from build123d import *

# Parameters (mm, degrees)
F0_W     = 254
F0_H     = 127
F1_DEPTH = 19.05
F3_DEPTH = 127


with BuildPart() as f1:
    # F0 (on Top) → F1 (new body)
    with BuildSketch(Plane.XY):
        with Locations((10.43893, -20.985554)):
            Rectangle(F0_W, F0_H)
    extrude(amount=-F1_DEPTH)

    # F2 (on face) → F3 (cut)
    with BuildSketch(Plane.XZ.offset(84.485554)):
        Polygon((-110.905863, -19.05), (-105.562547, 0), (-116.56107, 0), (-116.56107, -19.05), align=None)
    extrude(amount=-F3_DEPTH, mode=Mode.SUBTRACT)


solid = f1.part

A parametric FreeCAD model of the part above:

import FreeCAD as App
import Part
import Sketcher
from FreeCAD import Vector
Q = App.Units.Quantity


def add_polygon(sketch, points):
    """Adds a closed chain of lines whose ends are joined by coincident constraints."""
    first, n = sketch.GeometryCount, len(points)
    for a, b in zip(points, points[1:] + points[:1]):
        sketch.addGeometry(Part.LineSegment(App.Vector(*a, 0), App.Vector(*b, 0)), False)
    for i in range(n):
        sketch.addConstraint(Sketcher.Constraint("Coincident", first + i, 2, first + (i + 1) % n, 1))

doc = App.newDocument("Part")
body = doc.addObject("PartDesign::Body", "Body")

# Sketch on XY plane
sketch1 = doc.addObject("Sketcher::SketchObject", "Sketch")
body.addObject(sketch1)
sketch1.AttachmentSupport = (doc.XY_Plane, [""])
sketch1.MapMode = "FlatFace"
add_polygon(sketch1, [(-117, 43), (-117, -84), (137, -84), (137, 43)])  # lines 0-3
sketch1.addConstraint(Sketcher.Constraint("Vertical", 0))
sketch1.addConstraint(Sketcher.Constraint("Horizontal", 1))
sketch1.addConstraint(Sketcher.Constraint("Vertical", 2))
sketch1.addConstraint(Sketcher.Constraint("Horizontal", 3))
sketch1.addConstraint(Sketcher.Constraint("DistanceX", 1, 1, 1, 2, Q("10 in")))
sketch1.addConstraint(Sketcher.Constraint("DistanceY", 0, 2, 0, 1, Q("5 in")))
sketch1.addConstraint(Sketcher.Constraint("DistanceX", 0, 2, -1, 1, 116.56107))
sketch1.addConstraint(Sketcher.Constraint("DistanceY", 0, 2, -1, 1, 84.485554))
pad1 = doc.addObject("PartDesign::Pad", "Pad")
body.addObject(pad1)
pad1.Profile = sketch1
pad1.Length = Q("0.75 in")
pad1.Reversed = True

# Sketch on XZ plane
sketch2 = doc.addObject("Sketcher::SketchObject", "Sketch001")
body.addObject(sketch2)
sketch2.AttachmentSupport = (doc.XZ_Plane, [""])
sketch2.MapMode = "FlatFace"
sketch2.AttachmentOffset = App.Placement(Vector(0, 0, 84.485554), App.Rotation())
add_polygon(sketch2, [(-111, -19), (-106, 0), (-117, 0), (-117, -19)])  # lines 0-3
sketch2.addConstraint(Sketcher.Constraint("Horizontal", 1))
sketch2.addConstraint(Sketcher.Constraint("Vertical", 2))
sketch2.addConstraint(Sketcher.Constraint("Horizontal", 3))
sketch2.addConstraint(Sketcher.Constraint("PointOnObject", 0, 2, -1))
sketch2.addConstraint(Sketcher.Constraint("DistanceY", 2, 2, 2, 1, Q("0.75 in")))
sketch2.addConstraint(Sketcher.Constraint("DistanceX", 1, 2, 1, 1, 10.998523))
sketch2.addConstraint(Sketcher.Constraint("DistanceX", 3, 1, 3, 2, 5.655207))
sketch2.addConstraint(Sketcher.Constraint("DistanceX", 1, 2, -1, 1, 116.56107))
pocket1 = doc.addObject("PartDesign::Pocket", "Pocket")
body.addObject(pocket1)
pocket1.Profile = sketch2
pocket1.Length = Q("5 in")

doc.recompute()
